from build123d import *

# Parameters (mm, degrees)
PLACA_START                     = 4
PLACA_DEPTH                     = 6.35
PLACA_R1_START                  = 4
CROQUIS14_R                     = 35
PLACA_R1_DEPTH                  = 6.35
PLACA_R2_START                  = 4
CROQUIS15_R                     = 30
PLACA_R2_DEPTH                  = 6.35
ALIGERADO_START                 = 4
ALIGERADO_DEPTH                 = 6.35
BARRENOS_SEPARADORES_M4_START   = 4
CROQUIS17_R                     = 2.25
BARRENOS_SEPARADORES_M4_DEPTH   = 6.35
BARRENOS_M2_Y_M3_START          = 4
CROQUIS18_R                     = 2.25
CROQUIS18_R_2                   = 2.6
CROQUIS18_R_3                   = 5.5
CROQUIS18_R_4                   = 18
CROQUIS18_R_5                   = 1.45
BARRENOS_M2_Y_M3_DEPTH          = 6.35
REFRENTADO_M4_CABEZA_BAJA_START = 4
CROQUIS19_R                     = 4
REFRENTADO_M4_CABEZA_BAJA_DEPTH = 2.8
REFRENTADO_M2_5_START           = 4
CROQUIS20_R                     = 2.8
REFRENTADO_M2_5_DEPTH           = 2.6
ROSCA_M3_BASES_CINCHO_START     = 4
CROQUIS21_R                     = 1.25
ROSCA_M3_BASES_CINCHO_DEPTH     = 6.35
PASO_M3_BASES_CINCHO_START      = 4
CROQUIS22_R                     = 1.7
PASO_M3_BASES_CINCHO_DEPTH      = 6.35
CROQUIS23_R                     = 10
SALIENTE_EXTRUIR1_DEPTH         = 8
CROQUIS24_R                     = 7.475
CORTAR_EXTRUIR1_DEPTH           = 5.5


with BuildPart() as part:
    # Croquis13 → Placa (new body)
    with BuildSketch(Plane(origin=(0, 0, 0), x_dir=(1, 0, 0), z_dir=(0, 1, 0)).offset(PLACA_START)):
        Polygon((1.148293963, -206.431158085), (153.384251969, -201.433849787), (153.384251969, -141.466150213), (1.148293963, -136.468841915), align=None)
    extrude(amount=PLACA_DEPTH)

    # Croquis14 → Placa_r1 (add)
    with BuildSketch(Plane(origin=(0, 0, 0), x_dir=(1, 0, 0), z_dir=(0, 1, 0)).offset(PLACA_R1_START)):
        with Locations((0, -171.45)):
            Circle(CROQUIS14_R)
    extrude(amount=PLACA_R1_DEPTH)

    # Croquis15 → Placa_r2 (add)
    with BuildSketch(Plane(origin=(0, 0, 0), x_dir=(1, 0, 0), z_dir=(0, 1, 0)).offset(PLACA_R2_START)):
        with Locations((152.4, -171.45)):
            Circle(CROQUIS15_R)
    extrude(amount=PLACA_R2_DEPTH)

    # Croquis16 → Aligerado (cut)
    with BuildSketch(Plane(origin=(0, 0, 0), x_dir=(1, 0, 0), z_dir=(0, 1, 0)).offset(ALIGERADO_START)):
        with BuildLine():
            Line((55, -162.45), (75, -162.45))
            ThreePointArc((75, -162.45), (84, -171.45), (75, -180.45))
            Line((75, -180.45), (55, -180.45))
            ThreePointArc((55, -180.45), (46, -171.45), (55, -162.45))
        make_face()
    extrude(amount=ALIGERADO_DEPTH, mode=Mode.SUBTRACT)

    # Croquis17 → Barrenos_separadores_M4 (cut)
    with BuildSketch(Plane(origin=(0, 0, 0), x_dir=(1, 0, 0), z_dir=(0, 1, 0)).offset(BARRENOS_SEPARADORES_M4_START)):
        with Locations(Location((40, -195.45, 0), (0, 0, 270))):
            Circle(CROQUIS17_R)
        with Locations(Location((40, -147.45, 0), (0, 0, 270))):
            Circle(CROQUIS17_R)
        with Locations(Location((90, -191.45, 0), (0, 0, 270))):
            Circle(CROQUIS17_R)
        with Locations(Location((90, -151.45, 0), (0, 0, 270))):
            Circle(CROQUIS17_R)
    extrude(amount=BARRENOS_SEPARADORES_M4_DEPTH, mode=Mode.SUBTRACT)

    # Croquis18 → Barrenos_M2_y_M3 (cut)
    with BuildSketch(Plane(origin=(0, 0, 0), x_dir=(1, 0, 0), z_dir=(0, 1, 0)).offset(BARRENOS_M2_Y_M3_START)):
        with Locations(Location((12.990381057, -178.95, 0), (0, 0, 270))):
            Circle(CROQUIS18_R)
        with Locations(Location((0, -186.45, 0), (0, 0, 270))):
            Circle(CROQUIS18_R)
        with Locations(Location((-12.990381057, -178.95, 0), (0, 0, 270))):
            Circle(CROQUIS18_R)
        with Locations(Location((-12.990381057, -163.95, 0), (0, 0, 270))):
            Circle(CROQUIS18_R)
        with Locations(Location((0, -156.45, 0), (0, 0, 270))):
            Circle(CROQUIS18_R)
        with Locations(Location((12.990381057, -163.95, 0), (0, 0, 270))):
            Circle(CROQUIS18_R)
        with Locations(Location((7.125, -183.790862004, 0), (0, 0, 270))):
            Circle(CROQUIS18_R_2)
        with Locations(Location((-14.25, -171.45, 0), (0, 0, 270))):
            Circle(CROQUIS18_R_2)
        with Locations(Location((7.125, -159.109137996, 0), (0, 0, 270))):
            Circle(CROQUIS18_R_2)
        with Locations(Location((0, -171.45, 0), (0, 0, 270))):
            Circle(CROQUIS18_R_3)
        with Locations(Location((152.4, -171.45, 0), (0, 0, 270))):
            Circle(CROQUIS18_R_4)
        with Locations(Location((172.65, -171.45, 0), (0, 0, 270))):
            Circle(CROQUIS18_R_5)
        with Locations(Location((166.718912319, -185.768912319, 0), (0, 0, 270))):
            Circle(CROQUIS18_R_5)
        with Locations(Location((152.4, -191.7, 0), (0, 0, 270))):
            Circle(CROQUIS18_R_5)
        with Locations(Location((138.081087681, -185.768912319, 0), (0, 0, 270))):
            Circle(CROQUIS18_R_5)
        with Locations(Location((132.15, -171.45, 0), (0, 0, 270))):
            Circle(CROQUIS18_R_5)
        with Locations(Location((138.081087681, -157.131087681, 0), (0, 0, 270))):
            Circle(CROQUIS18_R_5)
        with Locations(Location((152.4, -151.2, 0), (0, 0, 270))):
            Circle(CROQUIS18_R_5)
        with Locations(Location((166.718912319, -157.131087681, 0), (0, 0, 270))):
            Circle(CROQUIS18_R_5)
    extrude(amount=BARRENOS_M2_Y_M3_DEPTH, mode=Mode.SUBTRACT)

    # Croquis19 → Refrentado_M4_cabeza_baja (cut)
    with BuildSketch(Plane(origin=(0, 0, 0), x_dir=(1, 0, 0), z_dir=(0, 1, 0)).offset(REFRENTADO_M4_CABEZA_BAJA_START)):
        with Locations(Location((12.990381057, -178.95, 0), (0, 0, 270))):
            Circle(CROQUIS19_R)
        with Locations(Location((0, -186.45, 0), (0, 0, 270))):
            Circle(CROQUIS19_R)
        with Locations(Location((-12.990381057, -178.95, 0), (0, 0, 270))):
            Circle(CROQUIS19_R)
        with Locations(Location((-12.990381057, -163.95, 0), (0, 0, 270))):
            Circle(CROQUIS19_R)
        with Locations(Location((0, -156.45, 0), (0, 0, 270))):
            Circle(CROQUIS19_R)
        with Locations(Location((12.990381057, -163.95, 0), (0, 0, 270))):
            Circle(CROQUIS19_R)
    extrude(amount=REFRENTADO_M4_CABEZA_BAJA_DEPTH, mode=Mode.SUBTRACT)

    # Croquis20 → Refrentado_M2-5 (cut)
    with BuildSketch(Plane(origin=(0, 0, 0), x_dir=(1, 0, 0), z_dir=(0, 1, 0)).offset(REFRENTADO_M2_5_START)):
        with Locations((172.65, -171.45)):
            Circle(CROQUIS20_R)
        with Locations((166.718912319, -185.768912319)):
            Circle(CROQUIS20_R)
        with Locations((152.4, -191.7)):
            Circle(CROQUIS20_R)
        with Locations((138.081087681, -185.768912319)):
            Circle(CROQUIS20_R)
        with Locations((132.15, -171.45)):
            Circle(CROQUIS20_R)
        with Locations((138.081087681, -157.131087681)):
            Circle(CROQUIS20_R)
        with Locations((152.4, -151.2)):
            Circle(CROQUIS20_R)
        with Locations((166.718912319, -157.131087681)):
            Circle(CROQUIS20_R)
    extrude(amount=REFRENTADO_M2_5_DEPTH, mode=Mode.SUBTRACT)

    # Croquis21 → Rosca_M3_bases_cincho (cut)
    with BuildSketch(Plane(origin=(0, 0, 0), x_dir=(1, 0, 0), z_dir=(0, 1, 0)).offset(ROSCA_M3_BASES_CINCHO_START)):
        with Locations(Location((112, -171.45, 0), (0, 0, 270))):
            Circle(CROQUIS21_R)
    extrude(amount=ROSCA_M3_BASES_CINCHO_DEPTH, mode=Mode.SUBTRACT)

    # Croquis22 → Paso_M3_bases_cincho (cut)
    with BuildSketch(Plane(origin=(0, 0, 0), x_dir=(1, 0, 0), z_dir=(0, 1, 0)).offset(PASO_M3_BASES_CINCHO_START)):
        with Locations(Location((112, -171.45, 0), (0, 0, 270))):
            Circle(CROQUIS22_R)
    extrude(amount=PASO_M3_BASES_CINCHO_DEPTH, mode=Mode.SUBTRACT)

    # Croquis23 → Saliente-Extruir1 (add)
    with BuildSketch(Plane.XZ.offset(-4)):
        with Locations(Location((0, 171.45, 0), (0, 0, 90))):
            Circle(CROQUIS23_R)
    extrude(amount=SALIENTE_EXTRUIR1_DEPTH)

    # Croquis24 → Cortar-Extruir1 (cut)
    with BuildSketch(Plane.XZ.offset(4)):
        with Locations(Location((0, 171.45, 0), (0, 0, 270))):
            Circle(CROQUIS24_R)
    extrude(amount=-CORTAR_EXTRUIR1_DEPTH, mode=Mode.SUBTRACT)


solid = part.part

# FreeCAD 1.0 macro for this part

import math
import FreeCAD as App
import Part
import Sketcher

V = App.Vector
Q = App.Units.Quantity


def add_polygon(sketch, points):
    """Adds a closed chain of lines whose ends are joined by coincident constraints."""
    first, n = sketch.GeometryCount, len(points)
    for a, b in zip(points, points[1:] + points[:1]):
        sketch.addGeometry(Part.LineSegment(App.Vector(*a, 0), App.Vector(*b, 0)), False)
    for i in range(n):
        sketch.addConstraint(Sketcher.Constraint("Coincident", first + i, 2, first + (i + 1) % n, 1))

doc = App.newDocument("Part")
body = doc.addObject("PartDesign::Body", "Body")

# Sketch on XZ plane
sketch1 = doc.addObject("Sketcher::SketchObject", "Sketch")
body.addObject(sketch1)
sketch1.AttachmentSupport = (doc.XZ_Plane, [""])
sketch1.MapMode = "FlatFace"
sketch1.AttachmentOffset = App.Placement(V(0, 0, -4), App.Rotation())
add_polygon(sketch1, [(1.148294, 206.431158), (153.384252, 201.43385), (153.384252, 141.46615), (1.148294, 136.468842)])  # lines 0-3
sketch1.addConstraint([
    Sketcher.Constraint("Vertical", 1),
    Sketcher.Constraint("Vertical", 3),
    Sketcher.Constraint("Equal", 0, 2),
    Sketcher.Constraint("DistanceY", 1, 2, 1, 1, Q("59.9677 mm")),
    Sketcher.Constraint("DistanceY", 3, 1, 3, 2, Q("69.962316 mm")),
    Sketcher.Constraint("DistanceX", -1, 1, 0, 2, Q("153.384252 mm")),
    Sketcher.Constraint("DistanceY", -1, 1, 0, 2, Q("201.43385 mm")),
    Sketcher.Constraint("DistanceX", 2, 2, 1, 2, Q("152.235958 mm")),
])
pad1 = doc.addObject("PartDesign::Pad", "Pad")
body.addObject(pad1)
pad1.Profile = sketch1
pad1.Length = 6.35
pad1.Reversed = True

# Sketch on XZ plane
sketch2 = doc.addObject("Sketcher::SketchObject", "Sketch001")
body.addObject(sketch2)
sketch2.AttachmentSupport = (doc.XZ_Plane, [""])
sketch2.MapMode = "FlatFace"
sketch2.AttachmentOffset = App.Placement(V(0, 0, -4), App.Rotation())
sketch2.addGeometry(Part.Circle(V(0, 171.45, 0), V(0, 0, 1), 35), False)
sketch2.addConstraint([
    Sketcher.Constraint("PointOnObject", 0, 3, -2),
    Sketcher.Constraint("Diameter", 0, Q("70 mm")),
    Sketcher.Constraint("DistanceY", -1, 1, 0, 3, Q("171.45 mm")),
])
pad2 = doc.addObject("PartDesign::Pad", "Pad001")
body.addObject(pad2)
pad2.Profile = sketch2
pad2.Length = 6.35
pad2.Reversed = True

# Sketch on XZ plane
sketch3 = doc.addObject("Sketcher::SketchObject", "Sketch002")
body.addObject(sketch3)
sketch3.AttachmentSupport = (doc.XZ_Plane, [""])
sketch3.MapMode = "FlatFace"
sketch3.AttachmentOffset = App.Placement(V(0, 0, -4), App.Rotation())
sketch3.addGeometry(Part.Circle(V(152.4, 171.45, 0), V(0, 0, 1), 30), False)
sketch3.addConstraint([
    Sketcher.Constraint("Diameter", 0, Q("60 mm")),
    Sketcher.Constraint("DistanceX", -1, 1, 0, 3, Q("152.4 mm")),
    Sketcher.Constraint("DistanceY", -1, 1, 0, 3, Q("171.45 mm")),
])
pad3 = doc.addObject("PartDesign::Pad", "Pad002")
body.addObject(pad3)
pad3.Profile = sketch3
pad3.Length = 6.35
pad3.Reversed = True

# Sketch on XZ plane
sketch4 = doc.addObject("Sketcher::SketchObject", "Sketch003")
body.addObject(sketch4)
sketch4.AttachmentSupport = (doc.XZ_Plane, [""])
sketch4.MapMode = "FlatFace"
sketch4.AttachmentOffset = App.Placement(V(0, 0, -4), App.Rotation())
sketch4.addGeometry([
    Part.LineSegment(V(75, 162.45, 0), V(55, 162.45, 0)),
    Part.ArcOfCircle(Part.Circle(V(55, 171.45, 0), V(0, 0, 1), 9), math.radians(90), math.radians(270)),
    Part.LineSegment(V(55, 180.45, 0), V(75, 180.45, 0)),
    Part.ArcOfCircle(Part.Circle(V(75, 171.45, 0), V(0, 0, 1), 9), math.radians(-90), math.radians(90)),
], False)
sketch4.addConstraint([
    Sketcher.Constraint("Tangent", 0, 2, 1, 2),
    Sketcher.Constraint("Tangent", 1, 1, 2, 1),
    Sketcher.Constraint("Tangent", 2, 2, 3, 2),
    Sketcher.Constraint("Tangent", 3, 1, 0, 1),
    Sketcher.Constraint("Horizontal", 0),
    Sketcher.Constraint("Horizontal", 2),
    Sketcher.Constraint("Radius", 1, Q("9 mm")),
    Sketcher.Constraint("DistanceX", 0, 2, 0, 1, Q("20 mm")),
    Sketcher.Constraint("DistanceX", -1, 1, 1, 3, Q("55 mm")),
    Sketcher.Constraint("DistanceY", -1, 1, 1, 3, Q("171.45 mm")),
])
pocket1 = doc.addObject("PartDesign::Pocket", "Pocket")
body.addObject(pocket1)
pocket1.Profile = sketch4
pocket1.Length = 6.35

# Sketch on XZ plane
sketch5 = doc.addObject("Sketcher::SketchObject", "Sketch004")
body.addObject(sketch5)
sketch5.AttachmentSupport = (doc.XZ_Plane, [""])
sketch5.MapMode = "FlatFace"
sketch5.AttachmentOffset = App.Placement(V(0, 0, -4), App.Rotation())
sketch5.addGeometry([
    Part.Circle(V(40, 195.45, 0), V(0, 0, 1), 2.25),
    Part.Circle(V(40, 147.45, 0), V(0, 0, 1), 2.25),
    Part.Circle(V(90, 191.45, 0), V(0, 0, 1), 2.25),
    Part.Circle(V(90, 151.45, 0), V(0, 0, 1), 2.25),
], False)
sketch5.addConstraint([
    Sketcher.Constraint("Equal", 0, 1),
    Sketcher.Constraint("Equal", 1, 2),
    Sketcher.Constraint("Equal", 2, 3),
    Sketcher.Constraint("Vertical", 0, 3, 1, 3),
    Sketcher.Constraint("Vertical", 2, 3, 3, 3),
    Sketcher.Constraint("Diameter", 0, Q("4.5 mm")),
    Sketcher.Constraint("DistanceX", -1, 1, 0, 3, Q("40 mm")),
    Sketcher.Constraint("DistanceX", -1, 1, 2, 3, Q("90 mm")),
    Sketcher.Constraint("DistanceY", 1, 3, 0, 3, Q("48 mm")),
    Sketcher.Constraint("DistanceY", 2, 3, 0, 3, Q("4 mm")),
    Sketcher.Constraint("DistanceY", 3, 3, 2, 3, Q("40 mm")),
    Sketcher.Constraint("DistanceY", -1, 1, 0, 3, Q("195.45 mm")),
])
pocket2 = doc.addObject("PartDesign::Pocket", "Pocket001")
body.addObject(pocket2)
pocket2.Profile = sketch5
pocket2.Length = 6.35

# Sketch on XZ plane
sketch6 = doc.addObject("Sketcher::SketchObject", "Sketch005")
body.addObject(sketch6)
sketch6.AttachmentSupport = (doc.XZ_Plane, [""])
sketch6.MapMode = "FlatFace"
sketch6.AttachmentOffset = App.Placement(V(0, 0, -4), App.Rotation())
sketch6.addGeometry([
    Part.Circle(V(12.990381, 178.95, 0), V(0, 0, 1), 2.25),  # 0
    Part.Circle(V(0, 186.45, 0), V(0, 0, 1), 2.25),  # 1
    Part.Circle(V(-12.990381, 178.95, 0), V(0, 0, 1), 2.25),  # 2
    Part.Circle(V(-12.990381, 163.95, 0), V(0, 0, 1), 2.25),  # 3
    Part.Circle(V(0, 156.45, 0), V(0, 0, 1), 2.25),  # 4
    Part.Circle(V(12.990381, 163.95, 0), V(0, 0, 1), 2.25),  # 5
    Part.Circle(V(7.125, 183.790862, 0), V(0, 0, 1), 2.6),  # 6
    Part.Circle(V(-14.25, 171.45, 0), V(0, 0, 1), 2.6),  # 7
    Part.Circle(V(7.125, 159.109138, 0), V(0, 0, 1), 2.6),  # 8
    Part.Circle(V(0, 171.45, 0), V(0, 0, 1), 5.5),  # 9
    Part.Circle(V(152.4, 171.45, 0), V(0, 0, 1), 18),  # 10
    Part.Circle(V(172.65, 171.45, 0), V(0, 0, 1), 1.45),  # 11
    Part.Circle(V(166.718912, 185.768912, 0), V(0, 0, 1), 1.45),  # 12
    Part.Circle(V(152.4, 191.7, 0), V(0, 0, 1), 1.45),  # 13
    Part.Circle(V(138.081088, 185.768912, 0), V(0, 0, 1), 1.45),  # 14
    Part.Circle(V(132.15, 171.45, 0), V(0, 0, 1), 1.45),  # 15
    Part.Circle(V(138.081088, 157.131088, 0), V(0, 0, 1), 1.45),  # 16
    Part.Circle(V(152.4, 151.2, 0), V(0, 0, 1), 1.45),  # 17
    Part.Circle(V(166.718912, 157.131088, 0), V(0, 0, 1), 1.45),  # 18
], False)
sketch6.addConstraint([
    Sketcher.Constraint("Equal", 0, 1),
    Sketcher.Constraint("Equal", 1, 2),
    Sketcher.Constraint("Equal", 2, 3),
    Sketcher.Constraint("Equal", 3, 4),
    Sketcher.Constraint("Equal", 4, 5),
    Sketcher.Constraint("Equal", 6, 7),
    Sketcher.Constraint("Equal", 7, 8),
    Sketcher.Constraint("Equal", 11, 12),
    Sketcher.Constraint("Equal", 12, 13),
    Sketcher.Constraint("Equal", 13, 14),
    Sketcher.Constraint("Equal", 14, 15),
    Sketcher.Constraint("Equal", 15, 16),
    Sketcher.Constraint("Equal", 16, 17),
    Sketcher.Constraint("Equal", 17, 18),
    Sketcher.Constraint("Symmetric", 0, 3, 2, 3, -2),
    Sketcher.Constraint("Symmetric", 3, 3, 5, 3, -2),
    Sketcher.Constraint("PointOnObject", 1, 3, -2),
    Sketcher.Constraint("PointOnObject", 4, 3, -2),
    Sketcher.Constraint("PointOnObject", 9, 3, -2),
    Sketcher.Constraint("Horizontal", 7, 3, 9, 3),
    Sketcher.Constraint("Horizontal", 9, 3, 10, 3),
    Sketcher.Constraint("Horizontal", 10, 3, 11, 3),
    Sketcher.Constraint("Horizontal", 12, 3, 14, 3),
    Sketcher.Constraint("Horizontal", 11, 3, 15, 3),
    Sketcher.Constraint("Horizontal", 16, 3, 18, 3),
    Sketcher.Constraint("Vertical", 2, 3, 3, 3),
    Sketcher.Constraint("Vertical", 6, 3, 8, 3),
    Sketcher.Constraint("Vertical", 10, 3, 13, 3),
    Sketcher.Constraint("Vertical", 14, 3, 16, 3),
    Sketcher.Constraint("Vertical", 13, 3, 17, 3),
    Sketcher.Constraint("Vertical", 12, 3, 18, 3),
    Sketcher.Constraint("Diameter", 9, Q("11 mm")),
    Sketcher.Constraint("Diameter", 10, Q("36 mm")),
    Sketcher.Constraint("Diameter", 0, Q("4.5 mm")),
    Sketcher.Constraint("Diameter", 6, Q("5.2 mm")),
    Sketcher.Constraint("Diameter", 11, Q("2.9 mm")),
    Sketcher.Constraint("DistanceY", 3, 3, 2, 3, Q("15 mm")),
    Sketcher.Constraint("DistanceY", 4, 3, 1, 3, Q("30 mm")),
    Sketcher.Constraint("DistanceY", 7, 3, 1, 3, Q("15 mm")),
    Sketcher.Constraint("DistanceX", -1, 1, 10, 3, Q("152.4 mm")),
    Sketcher.Constraint("DistanceY", -1, 1, 13, 3, Q("191.7 mm")),
    Sketcher.Constraint("DistanceY", -1, 1, 17, 3, Q("151.2 mm")),
    Sketcher.Constraint("DistanceY", 0, 3, 1, 3, Q("7.5 mm")),
    Sketcher.Constraint("DistanceX", 15, 3, 11, 3, Q("40.5 mm")),
    Sketcher.Constraint("DistanceY", -1, 1, 0, 3, Q("178.95 mm")),
    Sketcher.Constraint("DistanceX", 7, 3, -1, 1, Q("14.25 mm")),
    Sketcher.Constraint("DistanceX", -1, 1, 11, 3, Q("172.65 mm")),
    Sketcher.Constraint("DistanceX", -1, 1, 6, 3, Q("7.125 mm")),
    Sketcher.Constraint("DistanceX", -1, 1, 0, 3, Q("12.990381 mm")),
    Sketcher.Constraint("DistanceX", 0, 3, 12, 3, Q("153.728531 mm")),
    Sketcher.Constraint("DistanceY", 6, 3, 12, 3, Q("1.97805 mm")),
    Sketcher.Constraint("DistanceY", -1, 1, 6, 3, Q("183.790862 mm")),
    Sketcher.Constraint("DistanceY", -1, 1, 8, 3, Q("159.109138 mm")),
    Sketcher.Constraint("DistanceX", -1, 1, 14, 3, Q("138.081088 mm")),
    Sketcher.Constraint("DistanceY", -1, 1, 16, 3, Q("157.131088 mm")),
])
pocket3 = doc.addObject("PartDesign::Pocket", "Pocket002")
body.addObject(pocket3)
pocket3.Profile = sketch6
pocket3.Length = 6.35

# Sketch on XZ plane
sketch7 = doc.addObject("Sketcher::SketchObject", "Sketch006")
body.addObject(sketch7)
sketch7.AttachmentSupport = (doc.XZ_Plane, [""])
sketch7.MapMode = "FlatFace"
sketch7.AttachmentOffset = App.Placement(V(0, 0, -4), App.Rotation())
sketch7.addGeometry([
    Part.Circle(V(12.990381, 178.95, 0), V(0, 0, 1), 4),  # 0
    Part.Circle(V(0, 186.45, 0), V(0, 0, 1), 4),  # 1
    Part.Circle(V(-12.990381, 178.95, 0), V(0, 0, 1), 4),  # 2
    Part.Circle(V(-12.990381, 163.95, 0), V(0, 0, 1), 4),  # 3
    Part.Circle(V(0, 156.45, 0), V(0, 0, 1), 4),  # 4
    Part.Circle(V(12.990381, 163.95, 0), V(0, 0, 1), 4),  # 5
], False)
sketch7.addConstraint([
    Sketcher.Constraint("Equal", 0, 1),
    Sketcher.Constraint("Equal", 1, 2),
    Sketcher.Constraint("Equal", 2, 3),
    Sketcher.Constraint("Equal", 3, 4),
    Sketcher.Constraint("Equal", 4, 5),
    Sketcher.Constraint("Symmetric", 0, 3, 2, 3, -2),
    Sketcher.Constraint("Symmetric", 3, 3, 5, 3, -2),
    Sketcher.Constraint("PointOnObject", 1, 3, -2),
    Sketcher.Constraint("PointOnObject", 4, 3, -2),
    Sketcher.Constraint("Vertical", 2, 3, 3, 3),
    Sketcher.Constraint("Diameter", 0, Q("8 mm")),
    Sketcher.Constraint("DistanceY", 3, 3, 2, 3, Q("15 mm")),
    Sketcher.Constraint("DistanceY", 4, 3, 1, 3, Q("30 mm")),
    Sketcher.Constraint("DistanceY", 0, 3, 1, 3, Q("7.5 mm")),
    Sketcher.Constraint("DistanceY", -1, 1, 0, 3, Q("178.95 mm")),
    Sketcher.Constraint("DistanceX", -1, 1, 0, 3, Q("12.990381 mm")),
])
pocket4 = doc.addObject("PartDesign::Pocket", "Pocket003")
body.addObject(pocket4)
pocket4.Profile = sketch7
pocket4.Length = 2.8

# Sketch on XZ plane
sketch8 = doc.addObject("Sketcher::SketchObject", "Sketch007")
body.addObject(sketch8)
sketch8.AttachmentSupport = (doc.XZ_Plane, [""])
sketch8.MapMode = "FlatFace"
sketch8.AttachmentOffset = App.Placement(V(0, 0, -4), App.Rotation())
sketch8.addGeometry([
    Part.Circle(V(172.65, 171.45, 0), V(0, 0, 1), 2.8),  # 0
    Part.Circle(V(166.718912, 185.768912, 0), V(0, 0, 1), 2.8),  # 1
    Part.Circle(V(152.4, 191.7, 0), V(0, 0, 1), 2.8),  # 2
    Part.Circle(V(138.081088, 185.768912, 0), V(0, 0, 1), 2.8),  # 3
    Part.Circle(V(132.15, 171.45, 0), V(0, 0, 1), 2.8),  # 4
    Part.Circle(V(138.081088, 157.131088, 0), V(0, 0, 1), 2.8),  # 5
    Part.Circle(V(152.4, 151.2, 0), V(0, 0, 1), 2.8),  # 6
    Part.Circle(V(166.718912, 157.131088, 0), V(0, 0, 1), 2.8),  # 7
], False)
sketch8.addConstraint([
    Sketcher.Constraint("Equal", 0, 1),
    Sketcher.Constraint("Equal", 1, 2),
    Sketcher.Constraint("Equal", 2, 3),
    Sketcher.Constraint("Equal", 3, 4),
    Sketcher.Constraint("Equal", 4, 5),
    Sketcher.Constraint("Equal", 5, 6),
    Sketcher.Constraint("Equal", 6, 7),
    Sketcher.Constraint("Horizontal", 1, 3, 3, 3),
    Sketcher.Constraint("Horizontal", 0, 3, 4, 3),
    Sketcher.Constraint("Horizontal", 5, 3, 7, 3),
    Sketcher.Constraint("Vertical", 3, 3, 5, 3),
    Sketcher.Constraint("Vertical", 2, 3, 6, 3),
    Sketcher.Constraint("Vertical", 1, 3, 7, 3),
    Sketcher.Constraint("Diameter", 0, Q("5.6 mm")),
    Sketcher.Constraint("DistanceX", -1, 1, 2, 3, Q("152.4 mm")),
    Sketcher.Constraint("DistanceY", -1, 1, 2, 3, Q("191.7 mm")),
    Sketcher.Constraint("DistanceY", -1, 1, 6, 3, Q("151.2 mm")),
    Sketcher.Constraint("DistanceX", 4, 3, 0, 3, Q("40.5 mm")),
    Sketcher.Constraint("DistanceX", -1, 1, 0, 3, Q("172.65 mm")),
    Sketcher.Constraint("DistanceY", -1, 1, 0, 3, Q("171.45 mm")),
    Sketcher.Constraint("DistanceX", -1, 1, 1, 3, Q("166.718912 mm")),
    Sketcher.Constraint("DistanceY", -1, 1, 1, 3, Q("185.768912 mm")),
    Sketcher.Constraint("DistanceX", -1, 1, 3, 3, Q("138.081088 mm")),
    Sketcher.Constraint("DistanceY", -1, 1, 5, 3, Q("157.131088 mm")),
])
pocket5 = doc.addObject("PartDesign::Pocket", "Pocket004")
body.addObject(pocket5)
pocket5.Profile = sketch8
pocket5.Length = 2.6

# Sketch on XZ plane
sketch9 = doc.addObject("Sketcher::SketchObject", "Sketch008")
body.addObject(sketch9)
sketch9.AttachmentSupport = (doc.XZ_Plane, [""])
sketch9.MapMode = "FlatFace"
sketch9.AttachmentOffset = App.Placement(V(0, 0, -4), App.Rotation())
sketch9.addGeometry(Part.Circle(V(112, 171.45, 0), V(0, 0, 1), 1.25), False)
sketch9.addConstraint([
    Sketcher.Constraint("Diameter", 0, Q("2.5 mm")),
    Sketcher.Constraint("DistanceX", -1, 1, 0, 3, Q("112 mm")),
    Sketcher.Constraint("DistanceY", -1, 1, 0, 3, Q("171.45 mm")),
])
pocket6 = doc.addObject("PartDesign::Pocket", "Pocket005")
body.addObject(pocket6)
pocket6.Profile = sketch9
pocket6.Length = 6.35

# Sketch on XZ plane
sketch10 = doc.addObject("Sketcher::SketchObject", "Sketch009")
body.addObject(sketch10)
sketch10.AttachmentSupport = (doc.XZ_Plane, [""])
sketch10.MapMode = "FlatFace"
sketch10.AttachmentOffset = App.Placement(V(0, 0, -4), App.Rotation())
sketch10.addGeometry(Part.Circle(V(112, 171.45, 0), V(0, 0, 1), 1.7), False)
sketch10.addConstraint([
    Sketcher.Constraint("Diameter", 0, Q("3.4 mm")),
    Sketcher.Constraint("DistanceX", -1, 1, 0, 3, Q("112 mm")),
    Sketcher.Constraint("DistanceY", -1, 1, 0, 3, Q("171.45 mm")),
])
pocket7 = doc.addObject("PartDesign::Pocket", "Pocket006")
body.addObject(pocket7)
pocket7.Profile = sketch10
pocket7.Length = 6.35

# Sketch on XZ plane
sketch11 = doc.addObject("Sketcher::SketchObject", "Sketch010")
body.addObject(sketch11)
sketch11.AttachmentSupport = (doc.XZ_Plane, [""])
sketch11.MapMode = "FlatFace"
sketch11.AttachmentOffset = App.Placement(V(0, 0, -4), App.Rotation())
sketch11.addGeometry(Part.Circle(V(0, 171.45, 0), V(0, 0, 1), 10), False)
sketch11.addConstraint([
    Sketcher.Constraint("PointOnObject", 0, 3, -2),
    Sketcher.Constraint("Diameter", 0, Q("20 mm")),
    Sketcher.Constraint("DistanceY", -1, 1, 0, 3, Q("171.45 mm")),
])
pad4 = doc.addObject("PartDesign::Pad", "Pad003")
body.addObject(pad4)
pad4.Profile = sketch11
pad4.Length = 8

# Sketch on XZ plane
sketch12 = doc.addObject("Sketcher::SketchObject", "Sketch011")
body.addObject(sketch12)
sketch12.AttachmentSupport = (doc.XZ_Plane, [""])
sketch12.MapMode = "FlatFace"
sketch12.AttachmentOffset = App.Placement(V(0, 0, 4), App.Rotation())
sketch12.addGeometry(Part.Circle(V(0, 171.45, 0), V(0, 0, 1), 7.475), False)
sketch12.addConstraint([
    Sketcher.Constraint("PointOnObject", 0, 3, -2),
    Sketcher.Constraint("Diameter", 0, Q("14.95 mm")),
    Sketcher.Constraint("DistanceY", -1, 1, 0, 3, Q("171.45 mm")),
])
pocket8 = doc.addObject("PartDesign::Pocket", "Pocket007")
body.addObject(pocket8)
pocket8.Profile = sketch12
pocket8.Length = 5.5

doc.recompute()
